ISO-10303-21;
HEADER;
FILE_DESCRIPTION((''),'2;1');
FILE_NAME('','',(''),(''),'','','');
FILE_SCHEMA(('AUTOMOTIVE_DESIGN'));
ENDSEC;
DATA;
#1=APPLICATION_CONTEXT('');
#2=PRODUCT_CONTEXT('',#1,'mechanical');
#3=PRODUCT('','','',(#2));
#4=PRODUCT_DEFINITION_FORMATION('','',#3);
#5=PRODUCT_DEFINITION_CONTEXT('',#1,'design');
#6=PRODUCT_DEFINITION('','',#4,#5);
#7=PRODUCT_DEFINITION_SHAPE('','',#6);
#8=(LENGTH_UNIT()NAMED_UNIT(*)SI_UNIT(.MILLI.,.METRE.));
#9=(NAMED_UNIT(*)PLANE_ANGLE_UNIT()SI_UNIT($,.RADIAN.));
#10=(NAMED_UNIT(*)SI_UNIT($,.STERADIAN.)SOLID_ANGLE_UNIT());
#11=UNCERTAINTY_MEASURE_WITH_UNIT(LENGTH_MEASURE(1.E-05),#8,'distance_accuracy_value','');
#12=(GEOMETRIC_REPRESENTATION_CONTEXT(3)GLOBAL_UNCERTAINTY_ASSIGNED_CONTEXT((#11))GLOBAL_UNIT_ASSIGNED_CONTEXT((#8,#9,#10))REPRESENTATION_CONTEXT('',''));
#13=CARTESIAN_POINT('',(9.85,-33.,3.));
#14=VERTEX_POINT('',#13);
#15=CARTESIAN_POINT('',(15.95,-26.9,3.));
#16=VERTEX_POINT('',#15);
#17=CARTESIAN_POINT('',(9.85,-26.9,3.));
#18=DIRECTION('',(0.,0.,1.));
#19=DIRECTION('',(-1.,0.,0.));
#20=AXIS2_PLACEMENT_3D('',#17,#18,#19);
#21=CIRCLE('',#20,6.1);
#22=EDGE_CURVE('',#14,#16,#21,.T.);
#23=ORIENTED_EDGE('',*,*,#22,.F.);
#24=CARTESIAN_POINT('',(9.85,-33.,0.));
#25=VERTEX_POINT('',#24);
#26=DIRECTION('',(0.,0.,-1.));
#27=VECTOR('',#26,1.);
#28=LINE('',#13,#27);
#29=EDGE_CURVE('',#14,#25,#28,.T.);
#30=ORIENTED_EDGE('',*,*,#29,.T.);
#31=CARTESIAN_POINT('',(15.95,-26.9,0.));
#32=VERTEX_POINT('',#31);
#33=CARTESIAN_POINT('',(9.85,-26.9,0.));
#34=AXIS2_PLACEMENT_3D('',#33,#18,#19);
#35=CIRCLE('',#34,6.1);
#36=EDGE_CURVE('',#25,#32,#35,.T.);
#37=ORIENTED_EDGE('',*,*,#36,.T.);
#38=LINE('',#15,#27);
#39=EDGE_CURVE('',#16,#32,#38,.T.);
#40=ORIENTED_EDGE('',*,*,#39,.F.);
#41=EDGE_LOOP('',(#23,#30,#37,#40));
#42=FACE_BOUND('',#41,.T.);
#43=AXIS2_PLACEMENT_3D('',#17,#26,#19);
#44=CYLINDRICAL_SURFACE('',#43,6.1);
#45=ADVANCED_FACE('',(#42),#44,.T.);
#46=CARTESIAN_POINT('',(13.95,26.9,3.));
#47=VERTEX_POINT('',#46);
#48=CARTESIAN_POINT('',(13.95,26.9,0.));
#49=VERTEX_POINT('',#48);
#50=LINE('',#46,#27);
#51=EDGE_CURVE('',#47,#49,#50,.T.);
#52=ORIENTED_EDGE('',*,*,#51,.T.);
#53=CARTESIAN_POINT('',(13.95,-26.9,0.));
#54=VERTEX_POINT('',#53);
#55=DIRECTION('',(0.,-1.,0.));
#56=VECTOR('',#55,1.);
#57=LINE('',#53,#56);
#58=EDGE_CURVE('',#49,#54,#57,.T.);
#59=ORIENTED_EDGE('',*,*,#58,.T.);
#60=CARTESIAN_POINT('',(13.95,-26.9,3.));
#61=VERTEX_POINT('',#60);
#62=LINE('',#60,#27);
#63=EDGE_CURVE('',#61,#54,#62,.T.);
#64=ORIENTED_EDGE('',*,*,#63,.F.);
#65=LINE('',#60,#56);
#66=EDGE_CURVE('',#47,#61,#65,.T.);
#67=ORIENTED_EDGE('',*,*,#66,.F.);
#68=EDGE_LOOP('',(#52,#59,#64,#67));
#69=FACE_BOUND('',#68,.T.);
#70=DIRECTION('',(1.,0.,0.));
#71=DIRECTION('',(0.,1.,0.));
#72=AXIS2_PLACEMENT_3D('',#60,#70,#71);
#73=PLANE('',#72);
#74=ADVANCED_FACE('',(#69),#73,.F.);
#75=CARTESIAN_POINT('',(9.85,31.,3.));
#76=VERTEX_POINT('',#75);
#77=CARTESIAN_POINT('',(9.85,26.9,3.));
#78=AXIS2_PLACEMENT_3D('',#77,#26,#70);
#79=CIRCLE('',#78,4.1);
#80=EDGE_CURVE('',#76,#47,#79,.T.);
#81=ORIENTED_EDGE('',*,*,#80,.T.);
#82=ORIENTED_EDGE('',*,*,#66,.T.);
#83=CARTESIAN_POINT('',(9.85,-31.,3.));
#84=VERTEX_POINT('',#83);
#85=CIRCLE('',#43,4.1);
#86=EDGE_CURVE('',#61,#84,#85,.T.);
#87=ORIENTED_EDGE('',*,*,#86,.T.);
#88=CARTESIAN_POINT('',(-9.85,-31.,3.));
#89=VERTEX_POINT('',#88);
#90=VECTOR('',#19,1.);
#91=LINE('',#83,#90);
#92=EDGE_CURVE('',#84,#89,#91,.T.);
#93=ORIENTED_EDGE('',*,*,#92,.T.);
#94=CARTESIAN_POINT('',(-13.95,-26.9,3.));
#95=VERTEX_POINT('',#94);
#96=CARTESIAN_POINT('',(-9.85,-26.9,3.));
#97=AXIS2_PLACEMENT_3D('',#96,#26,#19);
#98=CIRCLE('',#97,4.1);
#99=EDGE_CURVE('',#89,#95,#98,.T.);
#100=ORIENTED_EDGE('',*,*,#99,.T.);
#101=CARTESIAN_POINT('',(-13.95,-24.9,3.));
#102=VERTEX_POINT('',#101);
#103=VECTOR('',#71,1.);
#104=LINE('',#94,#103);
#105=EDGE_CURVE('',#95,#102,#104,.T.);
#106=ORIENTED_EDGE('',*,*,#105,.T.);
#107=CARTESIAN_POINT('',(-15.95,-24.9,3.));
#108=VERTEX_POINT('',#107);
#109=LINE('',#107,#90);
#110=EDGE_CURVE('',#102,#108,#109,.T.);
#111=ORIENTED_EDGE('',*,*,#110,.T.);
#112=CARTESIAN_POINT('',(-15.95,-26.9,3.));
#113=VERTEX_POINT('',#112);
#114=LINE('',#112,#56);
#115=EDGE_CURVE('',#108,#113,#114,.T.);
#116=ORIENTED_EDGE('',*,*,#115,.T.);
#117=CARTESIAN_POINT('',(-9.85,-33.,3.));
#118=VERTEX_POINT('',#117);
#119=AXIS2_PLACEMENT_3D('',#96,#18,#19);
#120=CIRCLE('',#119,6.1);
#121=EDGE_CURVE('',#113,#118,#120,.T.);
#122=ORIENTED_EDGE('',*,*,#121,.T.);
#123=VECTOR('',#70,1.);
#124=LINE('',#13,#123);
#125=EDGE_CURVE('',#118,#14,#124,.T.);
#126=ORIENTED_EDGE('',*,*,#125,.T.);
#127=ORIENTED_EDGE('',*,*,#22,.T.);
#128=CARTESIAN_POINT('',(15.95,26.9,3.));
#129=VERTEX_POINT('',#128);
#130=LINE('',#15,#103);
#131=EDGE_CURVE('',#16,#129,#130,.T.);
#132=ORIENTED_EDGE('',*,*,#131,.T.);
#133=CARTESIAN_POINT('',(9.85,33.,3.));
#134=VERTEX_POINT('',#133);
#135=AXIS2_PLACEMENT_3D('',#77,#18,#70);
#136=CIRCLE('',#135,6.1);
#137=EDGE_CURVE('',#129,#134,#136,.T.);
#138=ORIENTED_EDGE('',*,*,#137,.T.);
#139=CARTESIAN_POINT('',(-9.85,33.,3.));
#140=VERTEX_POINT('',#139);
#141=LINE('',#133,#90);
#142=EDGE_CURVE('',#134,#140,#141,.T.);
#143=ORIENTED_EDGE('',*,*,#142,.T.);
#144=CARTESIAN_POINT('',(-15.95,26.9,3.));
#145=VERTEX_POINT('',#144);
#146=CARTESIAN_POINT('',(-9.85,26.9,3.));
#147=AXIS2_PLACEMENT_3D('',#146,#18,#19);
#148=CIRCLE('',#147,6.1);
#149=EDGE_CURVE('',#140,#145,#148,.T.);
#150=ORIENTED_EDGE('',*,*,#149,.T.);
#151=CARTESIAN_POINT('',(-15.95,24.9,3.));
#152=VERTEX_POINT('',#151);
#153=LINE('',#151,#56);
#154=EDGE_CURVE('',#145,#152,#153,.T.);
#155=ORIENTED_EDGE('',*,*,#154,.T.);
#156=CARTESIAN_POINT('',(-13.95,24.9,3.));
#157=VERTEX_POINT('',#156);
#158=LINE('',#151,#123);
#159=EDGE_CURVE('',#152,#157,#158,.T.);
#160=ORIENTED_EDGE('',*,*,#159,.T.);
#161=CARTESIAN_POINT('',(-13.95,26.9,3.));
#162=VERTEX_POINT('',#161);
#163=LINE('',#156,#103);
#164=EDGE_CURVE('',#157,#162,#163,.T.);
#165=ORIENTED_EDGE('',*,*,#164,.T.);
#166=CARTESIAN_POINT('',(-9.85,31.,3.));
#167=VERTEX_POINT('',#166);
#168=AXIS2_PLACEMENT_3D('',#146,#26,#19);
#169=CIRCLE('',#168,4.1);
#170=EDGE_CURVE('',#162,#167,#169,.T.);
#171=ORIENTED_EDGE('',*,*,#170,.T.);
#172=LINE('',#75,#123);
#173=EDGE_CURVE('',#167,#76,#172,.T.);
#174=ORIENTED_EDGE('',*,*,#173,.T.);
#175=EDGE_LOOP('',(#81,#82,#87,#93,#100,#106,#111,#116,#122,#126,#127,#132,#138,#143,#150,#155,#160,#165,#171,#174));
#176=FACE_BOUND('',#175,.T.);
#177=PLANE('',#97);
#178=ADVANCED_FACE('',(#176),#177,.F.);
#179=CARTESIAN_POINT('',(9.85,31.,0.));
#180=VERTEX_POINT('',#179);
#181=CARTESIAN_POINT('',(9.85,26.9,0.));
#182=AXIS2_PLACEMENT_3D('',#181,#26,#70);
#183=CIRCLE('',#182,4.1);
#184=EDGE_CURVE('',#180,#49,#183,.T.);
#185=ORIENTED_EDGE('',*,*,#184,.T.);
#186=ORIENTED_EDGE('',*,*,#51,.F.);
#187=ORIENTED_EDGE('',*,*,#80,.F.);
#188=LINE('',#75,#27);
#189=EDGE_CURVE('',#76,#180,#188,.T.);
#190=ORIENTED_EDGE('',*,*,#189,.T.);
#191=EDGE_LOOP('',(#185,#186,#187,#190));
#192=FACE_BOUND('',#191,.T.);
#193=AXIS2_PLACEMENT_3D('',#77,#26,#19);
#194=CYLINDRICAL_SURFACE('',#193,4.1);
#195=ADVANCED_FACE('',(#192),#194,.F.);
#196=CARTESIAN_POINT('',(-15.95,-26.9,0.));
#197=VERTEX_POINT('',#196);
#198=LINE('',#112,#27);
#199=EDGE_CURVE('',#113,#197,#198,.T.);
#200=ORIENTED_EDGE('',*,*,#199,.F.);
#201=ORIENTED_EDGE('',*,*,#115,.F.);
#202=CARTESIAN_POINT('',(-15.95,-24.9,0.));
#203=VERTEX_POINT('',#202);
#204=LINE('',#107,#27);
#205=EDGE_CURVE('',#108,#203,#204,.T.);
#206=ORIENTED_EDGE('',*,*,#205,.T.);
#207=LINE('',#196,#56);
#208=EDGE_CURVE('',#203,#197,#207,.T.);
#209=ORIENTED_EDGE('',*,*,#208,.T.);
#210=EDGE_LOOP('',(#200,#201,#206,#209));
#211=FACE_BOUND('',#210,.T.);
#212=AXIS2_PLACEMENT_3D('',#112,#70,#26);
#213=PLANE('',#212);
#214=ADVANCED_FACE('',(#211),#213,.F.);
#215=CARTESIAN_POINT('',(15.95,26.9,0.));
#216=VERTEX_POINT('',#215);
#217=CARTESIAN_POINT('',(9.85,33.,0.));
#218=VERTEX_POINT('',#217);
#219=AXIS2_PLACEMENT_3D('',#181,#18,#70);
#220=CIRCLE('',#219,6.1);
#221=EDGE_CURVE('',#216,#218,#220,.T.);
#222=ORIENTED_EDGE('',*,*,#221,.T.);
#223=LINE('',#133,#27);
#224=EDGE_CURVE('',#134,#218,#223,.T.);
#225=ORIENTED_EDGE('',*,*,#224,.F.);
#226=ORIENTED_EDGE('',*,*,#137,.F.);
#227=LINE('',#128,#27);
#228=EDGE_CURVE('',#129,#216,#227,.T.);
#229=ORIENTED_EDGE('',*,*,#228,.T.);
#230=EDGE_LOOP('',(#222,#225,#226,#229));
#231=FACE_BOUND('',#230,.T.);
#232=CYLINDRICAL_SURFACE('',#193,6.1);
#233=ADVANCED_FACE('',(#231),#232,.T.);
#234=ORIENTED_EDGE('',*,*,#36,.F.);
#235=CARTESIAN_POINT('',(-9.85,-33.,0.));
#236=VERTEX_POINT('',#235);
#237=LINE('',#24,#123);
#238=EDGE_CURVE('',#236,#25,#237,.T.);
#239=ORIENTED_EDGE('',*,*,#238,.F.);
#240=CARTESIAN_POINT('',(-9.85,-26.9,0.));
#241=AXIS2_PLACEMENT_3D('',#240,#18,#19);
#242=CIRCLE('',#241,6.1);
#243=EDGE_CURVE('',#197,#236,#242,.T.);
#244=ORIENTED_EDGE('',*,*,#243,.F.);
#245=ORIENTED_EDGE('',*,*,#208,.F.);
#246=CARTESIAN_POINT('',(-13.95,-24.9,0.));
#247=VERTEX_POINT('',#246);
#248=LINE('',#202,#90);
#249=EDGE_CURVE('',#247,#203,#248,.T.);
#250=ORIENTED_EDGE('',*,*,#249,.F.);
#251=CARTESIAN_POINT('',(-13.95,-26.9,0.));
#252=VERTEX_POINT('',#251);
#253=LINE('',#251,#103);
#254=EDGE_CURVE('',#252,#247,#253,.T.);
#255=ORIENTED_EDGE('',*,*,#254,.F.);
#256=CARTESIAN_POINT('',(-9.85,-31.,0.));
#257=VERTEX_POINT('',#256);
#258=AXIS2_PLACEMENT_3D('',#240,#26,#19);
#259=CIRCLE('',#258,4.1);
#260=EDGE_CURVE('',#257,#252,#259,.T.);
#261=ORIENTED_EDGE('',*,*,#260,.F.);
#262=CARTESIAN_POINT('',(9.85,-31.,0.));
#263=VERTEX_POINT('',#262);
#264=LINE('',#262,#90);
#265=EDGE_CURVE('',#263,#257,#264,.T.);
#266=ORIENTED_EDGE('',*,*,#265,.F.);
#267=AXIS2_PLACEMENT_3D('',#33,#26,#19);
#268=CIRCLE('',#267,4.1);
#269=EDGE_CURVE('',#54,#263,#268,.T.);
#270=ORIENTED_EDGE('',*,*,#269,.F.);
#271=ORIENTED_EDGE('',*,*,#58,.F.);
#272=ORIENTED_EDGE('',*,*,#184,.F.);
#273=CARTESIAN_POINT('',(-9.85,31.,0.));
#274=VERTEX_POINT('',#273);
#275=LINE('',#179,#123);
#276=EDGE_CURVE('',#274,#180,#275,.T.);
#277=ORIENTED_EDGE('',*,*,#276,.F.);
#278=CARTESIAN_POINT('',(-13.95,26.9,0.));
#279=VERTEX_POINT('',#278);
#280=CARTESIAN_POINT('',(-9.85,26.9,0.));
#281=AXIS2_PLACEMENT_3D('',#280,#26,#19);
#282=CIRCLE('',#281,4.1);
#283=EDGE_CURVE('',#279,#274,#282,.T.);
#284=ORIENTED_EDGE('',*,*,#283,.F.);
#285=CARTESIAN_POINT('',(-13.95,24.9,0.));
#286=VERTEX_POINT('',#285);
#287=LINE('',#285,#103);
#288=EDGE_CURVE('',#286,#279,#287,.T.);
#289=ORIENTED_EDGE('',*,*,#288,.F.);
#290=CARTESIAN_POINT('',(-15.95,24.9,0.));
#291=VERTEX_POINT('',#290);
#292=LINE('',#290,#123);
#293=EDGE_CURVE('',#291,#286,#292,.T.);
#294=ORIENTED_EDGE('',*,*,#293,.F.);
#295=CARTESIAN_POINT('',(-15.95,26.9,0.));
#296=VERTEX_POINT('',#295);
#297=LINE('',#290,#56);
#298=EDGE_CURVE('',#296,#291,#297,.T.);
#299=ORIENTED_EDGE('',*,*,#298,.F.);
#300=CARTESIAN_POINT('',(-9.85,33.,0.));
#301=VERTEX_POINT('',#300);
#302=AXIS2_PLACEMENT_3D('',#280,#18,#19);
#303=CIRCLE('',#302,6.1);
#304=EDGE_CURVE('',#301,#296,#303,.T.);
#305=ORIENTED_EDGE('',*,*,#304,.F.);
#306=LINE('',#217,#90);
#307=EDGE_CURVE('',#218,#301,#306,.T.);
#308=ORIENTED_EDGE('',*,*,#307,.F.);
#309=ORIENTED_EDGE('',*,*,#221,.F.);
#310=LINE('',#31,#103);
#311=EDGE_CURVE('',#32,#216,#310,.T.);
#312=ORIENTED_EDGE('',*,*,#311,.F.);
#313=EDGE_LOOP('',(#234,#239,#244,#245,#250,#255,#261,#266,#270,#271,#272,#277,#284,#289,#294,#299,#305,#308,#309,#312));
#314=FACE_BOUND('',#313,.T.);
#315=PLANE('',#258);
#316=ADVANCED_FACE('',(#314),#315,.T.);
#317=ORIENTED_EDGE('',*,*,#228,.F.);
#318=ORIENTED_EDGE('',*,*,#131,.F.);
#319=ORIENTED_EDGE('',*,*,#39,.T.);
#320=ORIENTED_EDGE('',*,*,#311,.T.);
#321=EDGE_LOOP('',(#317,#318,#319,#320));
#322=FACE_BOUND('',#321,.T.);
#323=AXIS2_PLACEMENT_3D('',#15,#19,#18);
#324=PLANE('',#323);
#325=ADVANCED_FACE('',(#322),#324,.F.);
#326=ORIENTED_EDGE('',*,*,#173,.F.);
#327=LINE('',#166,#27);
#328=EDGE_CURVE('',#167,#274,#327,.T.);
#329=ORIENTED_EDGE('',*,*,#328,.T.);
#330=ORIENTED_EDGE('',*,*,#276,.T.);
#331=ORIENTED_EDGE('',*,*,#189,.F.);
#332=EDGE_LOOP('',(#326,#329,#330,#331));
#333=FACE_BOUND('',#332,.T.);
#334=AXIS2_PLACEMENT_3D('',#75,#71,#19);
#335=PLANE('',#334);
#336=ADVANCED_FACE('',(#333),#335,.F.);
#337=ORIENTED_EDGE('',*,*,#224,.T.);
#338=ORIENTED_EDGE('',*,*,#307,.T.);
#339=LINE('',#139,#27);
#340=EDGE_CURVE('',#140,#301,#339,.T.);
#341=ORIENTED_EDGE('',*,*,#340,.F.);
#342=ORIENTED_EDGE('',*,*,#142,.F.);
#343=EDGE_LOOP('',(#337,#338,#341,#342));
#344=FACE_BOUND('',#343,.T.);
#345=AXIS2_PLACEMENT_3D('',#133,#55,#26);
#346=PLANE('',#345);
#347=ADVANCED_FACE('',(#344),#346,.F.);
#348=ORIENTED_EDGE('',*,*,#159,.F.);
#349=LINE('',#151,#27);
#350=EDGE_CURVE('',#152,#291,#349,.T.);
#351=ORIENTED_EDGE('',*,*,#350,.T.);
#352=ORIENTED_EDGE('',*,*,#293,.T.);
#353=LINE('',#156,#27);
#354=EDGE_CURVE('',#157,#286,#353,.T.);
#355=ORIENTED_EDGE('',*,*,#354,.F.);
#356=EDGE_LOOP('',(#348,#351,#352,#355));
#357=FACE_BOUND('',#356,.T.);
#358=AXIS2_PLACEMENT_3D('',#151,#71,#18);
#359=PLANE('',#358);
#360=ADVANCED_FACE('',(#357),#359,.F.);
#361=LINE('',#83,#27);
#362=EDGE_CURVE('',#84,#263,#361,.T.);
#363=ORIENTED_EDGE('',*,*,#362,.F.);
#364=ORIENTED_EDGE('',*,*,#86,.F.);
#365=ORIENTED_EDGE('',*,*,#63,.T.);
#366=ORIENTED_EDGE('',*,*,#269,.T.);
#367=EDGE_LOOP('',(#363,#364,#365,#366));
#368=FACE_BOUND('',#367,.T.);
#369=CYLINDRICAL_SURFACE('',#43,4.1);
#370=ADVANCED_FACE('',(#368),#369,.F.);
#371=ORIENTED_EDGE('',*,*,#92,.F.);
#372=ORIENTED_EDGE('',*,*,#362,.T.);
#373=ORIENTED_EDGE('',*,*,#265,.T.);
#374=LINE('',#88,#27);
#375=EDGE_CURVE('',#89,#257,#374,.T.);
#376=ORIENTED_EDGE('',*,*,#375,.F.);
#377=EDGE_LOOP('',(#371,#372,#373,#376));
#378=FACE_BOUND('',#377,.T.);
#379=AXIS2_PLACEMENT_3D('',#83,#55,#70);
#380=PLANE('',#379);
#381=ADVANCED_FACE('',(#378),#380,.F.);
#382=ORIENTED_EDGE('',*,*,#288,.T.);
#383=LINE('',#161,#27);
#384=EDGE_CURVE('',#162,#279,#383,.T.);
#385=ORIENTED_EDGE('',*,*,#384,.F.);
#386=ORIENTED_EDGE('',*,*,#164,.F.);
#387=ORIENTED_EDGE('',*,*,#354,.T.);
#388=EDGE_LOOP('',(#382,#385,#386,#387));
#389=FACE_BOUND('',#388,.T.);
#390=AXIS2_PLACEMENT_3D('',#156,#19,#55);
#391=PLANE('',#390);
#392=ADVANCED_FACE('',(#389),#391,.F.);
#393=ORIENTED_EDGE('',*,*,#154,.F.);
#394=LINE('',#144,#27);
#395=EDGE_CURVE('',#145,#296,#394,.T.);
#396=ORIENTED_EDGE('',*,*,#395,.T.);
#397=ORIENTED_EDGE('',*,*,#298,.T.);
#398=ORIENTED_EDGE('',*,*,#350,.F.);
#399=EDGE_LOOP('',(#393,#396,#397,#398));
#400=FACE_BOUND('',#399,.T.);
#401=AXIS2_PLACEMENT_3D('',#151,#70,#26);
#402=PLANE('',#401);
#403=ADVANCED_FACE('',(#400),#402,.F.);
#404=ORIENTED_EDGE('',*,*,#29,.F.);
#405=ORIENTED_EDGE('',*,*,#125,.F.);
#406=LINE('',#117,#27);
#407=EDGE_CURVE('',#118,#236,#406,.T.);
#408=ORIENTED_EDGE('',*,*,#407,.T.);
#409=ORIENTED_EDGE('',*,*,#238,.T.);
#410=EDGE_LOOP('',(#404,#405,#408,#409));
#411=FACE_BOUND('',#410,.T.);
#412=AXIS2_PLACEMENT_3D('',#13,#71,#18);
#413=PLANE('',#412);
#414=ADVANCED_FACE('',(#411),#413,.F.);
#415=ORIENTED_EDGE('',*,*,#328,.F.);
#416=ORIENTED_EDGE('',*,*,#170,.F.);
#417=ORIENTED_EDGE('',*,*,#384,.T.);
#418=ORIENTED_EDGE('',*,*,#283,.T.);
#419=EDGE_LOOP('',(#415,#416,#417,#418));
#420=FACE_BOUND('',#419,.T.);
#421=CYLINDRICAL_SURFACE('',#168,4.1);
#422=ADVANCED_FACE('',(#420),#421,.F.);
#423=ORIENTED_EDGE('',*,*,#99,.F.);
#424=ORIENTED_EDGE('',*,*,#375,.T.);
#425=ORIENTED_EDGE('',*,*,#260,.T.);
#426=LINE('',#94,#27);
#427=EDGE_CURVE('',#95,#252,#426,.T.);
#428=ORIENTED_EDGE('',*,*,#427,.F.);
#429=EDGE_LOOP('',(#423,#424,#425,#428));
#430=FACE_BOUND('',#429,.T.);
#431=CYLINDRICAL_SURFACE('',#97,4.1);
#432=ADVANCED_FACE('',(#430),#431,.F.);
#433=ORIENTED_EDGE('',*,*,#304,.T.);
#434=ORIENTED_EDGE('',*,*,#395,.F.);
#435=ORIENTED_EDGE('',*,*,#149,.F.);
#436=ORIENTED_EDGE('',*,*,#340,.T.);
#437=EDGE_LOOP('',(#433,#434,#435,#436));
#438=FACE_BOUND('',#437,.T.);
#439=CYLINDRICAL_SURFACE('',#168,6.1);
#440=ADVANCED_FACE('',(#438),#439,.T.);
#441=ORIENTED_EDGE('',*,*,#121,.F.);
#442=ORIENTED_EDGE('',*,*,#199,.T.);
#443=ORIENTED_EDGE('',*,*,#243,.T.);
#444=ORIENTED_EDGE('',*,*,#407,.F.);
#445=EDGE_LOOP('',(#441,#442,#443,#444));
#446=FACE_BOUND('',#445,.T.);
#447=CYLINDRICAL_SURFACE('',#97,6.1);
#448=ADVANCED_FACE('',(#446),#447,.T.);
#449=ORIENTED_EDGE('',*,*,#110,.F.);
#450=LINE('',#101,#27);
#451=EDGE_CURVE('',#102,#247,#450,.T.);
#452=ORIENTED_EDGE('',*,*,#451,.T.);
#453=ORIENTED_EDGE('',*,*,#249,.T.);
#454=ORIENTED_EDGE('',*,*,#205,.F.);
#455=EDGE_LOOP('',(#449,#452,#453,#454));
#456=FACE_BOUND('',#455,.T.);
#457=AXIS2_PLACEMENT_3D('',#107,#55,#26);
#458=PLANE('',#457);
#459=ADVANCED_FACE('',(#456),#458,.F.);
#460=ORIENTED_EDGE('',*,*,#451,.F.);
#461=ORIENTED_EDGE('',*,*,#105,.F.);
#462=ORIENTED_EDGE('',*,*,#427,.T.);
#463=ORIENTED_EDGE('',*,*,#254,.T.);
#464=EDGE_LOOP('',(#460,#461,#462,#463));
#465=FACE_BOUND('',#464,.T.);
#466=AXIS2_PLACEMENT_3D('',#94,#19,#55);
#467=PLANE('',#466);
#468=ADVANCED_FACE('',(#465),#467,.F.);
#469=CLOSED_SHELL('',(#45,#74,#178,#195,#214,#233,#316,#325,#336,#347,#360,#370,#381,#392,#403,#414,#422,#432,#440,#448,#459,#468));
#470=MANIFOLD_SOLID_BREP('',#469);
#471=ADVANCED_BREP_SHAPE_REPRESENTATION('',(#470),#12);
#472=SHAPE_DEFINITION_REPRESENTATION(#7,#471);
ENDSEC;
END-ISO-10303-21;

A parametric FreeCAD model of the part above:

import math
import FreeCAD as App
import Part
import Sketcher

V = App.Vector

doc = App.newDocument("Part")
body = doc.addObject("PartDesign::Body", "Body")

sketch1 = body.newObject("Sketcher::SketchObject", "Sketch")
sketch1.AttachmentSupport = (doc.getObject("XY_Plane"), [""])
sketch1.MapMode = "FlatFace"
sketch1.addGeometry([
    Part.LineSegment(V(-13.9, -26.9, 0), V(-13.9, -24.9, 0)),
    Part.LineSegment(V(-13.9, -24.9, 0), V(-15.9, -24.9, 0)),
    Part.LineSegment(V(-15.9, -24.9, 0), V(-15.9, -26.9, 0)),
    Part.ArcOfCircle(Part.Circle(V(-9.8, -26.9, 0), V(0, 0, 1), 6.1), math.radians(-180), math.radians(-90)),
    Part.LineSegment(V(-9.8, -33, 0), V(9.8, -33, 0)),
    Part.ArcOfCircle(Part.Circle(V(9.8, -26.9, 0), V(0, 0, 1), 6.1), math.radians(-90), math.radians(0)),
    Part.LineSegment(V(15.9, -26.9, 0), V(15.9, 26.9, 0)),
    Part.ArcOfCircle(Part.Circle(V(9.8, 26.9, 0), V(0, 0, 1), 6.1), math.radians(0), math.radians(90)),
    Part.LineSegment(V(9.8, 33, 0), V(-9.8, 33, 0)),
    Part.ArcOfCircle(Part.Circle(V(-9.8, 26.9, 0), V(0, 0, 1), 6.1), math.radians(90), math.radians(180)),
    Part.LineSegment(V(-15.9, 26.9, 0), V(-15.9, 24.9, 0)),
    Part.LineSegment(V(-15.9, 24.9, 0), V(-13.9, 24.9, 0)),
    Part.LineSegment(V(-13.9, 24.9, 0), V(-13.9, 26.9, 0)),
    Part.ArcOfCircle(Part.Circle(V(-9.8, 26.9, 0), V(0, 0, 1), 4.1), math.radians(90), math.radians(180)),
    Part.LineSegment(V(-9.8, 31, 0), V(9.8, 31, 0)),
    Part.ArcOfCircle(Part.Circle(V(9.8, 26.9, 0), V(0, 0, 1), 4.1), math.radians(0), math.radians(90)),
    Part.LineSegment(V(13.9, 26.9, 0), V(13.9, -26.9, 0)),
    Part.ArcOfCircle(Part.Circle(V(9.8, -26.9, 0), V(0, 0, 1), 4.1), math.radians(-90), math.radians(0)),
    Part.LineSegment(V(9.8, -31, 0), V(-9.8, -31, 0)),
    Part.ArcOfCircle(Part.Circle(V(-9.8, -26.9, 0), V(0, 0, 1), 4.1), math.radians(180), math.radians(270)),
], False)
sketch1.addConstraint([
    Sketcher.Constraint("Coincident", 0, 2, 1, 1),
    Sketcher.Constraint("Coincident", 1, 2, 2, 1),
    Sketcher.Constraint("Tangent", 2, 2, 3, 1),
    Sketcher.Constraint("Tangent", 3, 2, 4, 1),
    Sketcher.Constraint("Tangent", 4, 2, 5, 1),
    Sketcher.Constraint("Tangent", 5, 2, 6, 1),
    Sketcher.Constraint("Tangent", 6, 2, 7, 1),
    Sketcher.Constraint("Tangent", 7, 2, 8, 1),
    Sketcher.Constraint("Tangent", 8, 2, 9, 1),
    Sketcher.Constraint("Tangent", 9, 2, 10, 1),
    Sketcher.Constraint("Coincident", 10, 2, 11, 1),
    Sketcher.Constraint("Coincident", 11, 2, 12, 1),
    Sketcher.Constraint("Tangent", 12, 2, 13, 2),
    Sketcher.Constraint("Tangent", 13, 1, 14, 1),
    Sketcher.Constraint("Tangent", 14, 2, 15, 2),
    Sketcher.Constraint("Tangent", 15, 1, 16, 1),
    Sketcher.Constraint("Tangent", 16, 2, 17, 2),
    Sketcher.Constraint("Tangent", 17, 1, 18, 1),
    Sketcher.Constraint("Tangent", 18, 2, 19, 2),
    Sketcher.Constraint("Tangent", 19, 1, 0, 1),
    Sketcher.Constraint("Vertical", 0),
    Sketcher.Constraint("Horizontal", 1),
    Sketcher.Constraint("Vertical", 2),
    Sketcher.Constraint("Horizontal", 4),
    Sketcher.Constraint("Vertical", 6),
    Sketcher.Constraint("Horizontal", 8),
    Sketcher.Constraint("Vertical", 10),
    Sketcher.Constraint("Horizontal", 11),
    Sketcher.Constraint("Vertical", 12),
    Sketcher.Constraint("Horizontal", 14),
    Sketcher.Constraint("Vertical", 16),
    Sketcher.Constraint("Horizontal", 18),
    Sketcher.Constraint("Coincident", 13, 3, 9, 3),
    Sketcher.Constraint("Coincident", 15, 3, 7, 3),
    Sketcher.Constraint("Coincident", 17, 3, 5, 3),
    Sketcher.Constraint("Coincident", 19, 3, 3, 3),
    Sketcher.Constraint("Equal", 3, 5),
    Sketcher.Constraint("Equal", 5, 7),
    Sketcher.Constraint("Equal", 7, 9),
    Sketcher.Constraint("Symmetric", 3, 3, 7, 3, -1, 1),
    Sketcher.Constraint("Symmetric", 1, 2, 10, 2, -1),
    Sketcher.Constraint("Equal", 11, 0),
    Sketcher.Constraint("Radius", 3, 6.1),
    Sketcher.Constraint("Radius", 13, 4.1),
    Sketcher.Constraint("DistanceX", 4, 1, 4, 2, 19.7),
    Sketcher.Constraint("DistanceY", 6, 1, 6, 2, 53.8),
])
pad1 = body.newObject("PartDesign::Pad", "Pad")
pad1.Profile = sketch1
pad1.Length = 3

doc.recompute()
